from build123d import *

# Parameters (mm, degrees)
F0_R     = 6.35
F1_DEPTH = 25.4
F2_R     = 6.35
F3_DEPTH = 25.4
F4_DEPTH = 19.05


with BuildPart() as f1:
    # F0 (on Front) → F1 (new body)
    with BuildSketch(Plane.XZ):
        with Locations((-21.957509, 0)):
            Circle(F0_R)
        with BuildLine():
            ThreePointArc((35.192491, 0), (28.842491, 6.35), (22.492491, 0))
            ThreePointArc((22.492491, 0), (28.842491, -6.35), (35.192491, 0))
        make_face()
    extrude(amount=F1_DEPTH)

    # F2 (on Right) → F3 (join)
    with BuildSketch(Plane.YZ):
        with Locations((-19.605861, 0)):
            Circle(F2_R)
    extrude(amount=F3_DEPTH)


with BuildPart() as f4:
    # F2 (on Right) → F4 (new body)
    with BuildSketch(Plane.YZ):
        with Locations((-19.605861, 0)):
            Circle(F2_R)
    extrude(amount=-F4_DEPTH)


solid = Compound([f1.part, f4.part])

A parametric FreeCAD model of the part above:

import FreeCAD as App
import Part
import Sketcher
Q = App.Units.Quantity

doc = App.newDocument("Part")
body = doc.addObject("PartDesign::Body", "Body")
body.AllowCompound = True

# Sketch on XZ plane
sketch1 = body.newObject("Sketcher::SketchObject", "Sketch")
sketch1.AttachmentSupport = (doc.getObject("XZ_Plane"), [""])
sketch1.MapMode = "FlatFace"
sketch1.addGeometry(Part.Circle(App.Vector(-21.957509, 0, 0), App.Vector(0, 0, 1), 6.35), False)
sketch1.addGeometry(Part.Circle(App.Vector(28.842491, 0, 0), App.Vector(0, 0, 1), 6.35), False)
sketch1.addConstraint(Sketcher.Constraint("Equal", 0, 1))
sketch1.addConstraint(Sketcher.Constraint("PointOnObject", 0, 3, -1))
sketch1.addConstraint(Sketcher.Constraint("PointOnObject", 1, 3, -1))
sketch1.addConstraint(Sketcher.Constraint("Diameter", 0, Q("0.5 in")))
sketch1.addConstraint(Sketcher.Constraint("DistanceX", 0, 3, 1, 3, Q("2 in")))
sketch1.addConstraint(Sketcher.Constraint("DistanceX", 0, 3, -1, 1, Q("21.957509 mm")))
pad1 = body.newObject("PartDesign::Pad", "Pad")
pad1.Profile = sketch1
pad1.Length = Q("1 in")

# Sketch on YZ plane
sketch2 = body.newObject("Sketcher::SketchObject", "Sketch001")
sketch2.AttachmentSupport = (doc.getObject("YZ_Plane"), [""])
sketch2.MapMode = "FlatFace"
sketch2.addGeometry(Part.Circle(App.Vector(-19.605861, 0, 0), App.Vector(0, 0, 1), 6.35), False)
sketch2.addConstraint(Sketcher.Constraint("PointOnObject", 0, 3, -1))
sketch2.addConstraint(Sketcher.Constraint("Diameter", 0, Q("0.5 in")))
sketch2.addConstraint(Sketcher.Constraint("DistanceX", 0, 3, -1, 1, Q("19.605861 mm")))
pad2 = body.newObject("PartDesign::Pad", "Pad001")
pad2.Profile = sketch2
pad2.Length = Q("1 in")
body2 = doc.addObject("PartDesign::Body", "Body001")

# Sketch on YZ plane
sketch3 = body2.newObject("Sketcher::SketchObject", "Sketch002")
sketch3.AttachmentSupport = (doc.getObject("YZ_Plane001"), [""])
sketch3.MapMode = "FlatFace"
sketch3.addGeometry(Part.Circle(App.Vector(-19.605861, 0, 0), App.Vector(0, 0, 1), 6.35), False)
sketch3.addConstraint(Sketcher.Constraint("PointOnObject", 0, 3, -1))
sketch3.addConstraint(Sketcher.Constraint("Diameter", 0, Q("0.5 in")))
sketch3.addConstraint(Sketcher.Constraint("DistanceX", 0, 3, -1, 1, Q("19.605861 mm")))
pad3 = body2.newObject("PartDesign::Pad", "Pad002")
pad3.Profile = sketch3
pad3.Length = Q("0.75 in")
pad3.Reversed = True

doc.recompute()
